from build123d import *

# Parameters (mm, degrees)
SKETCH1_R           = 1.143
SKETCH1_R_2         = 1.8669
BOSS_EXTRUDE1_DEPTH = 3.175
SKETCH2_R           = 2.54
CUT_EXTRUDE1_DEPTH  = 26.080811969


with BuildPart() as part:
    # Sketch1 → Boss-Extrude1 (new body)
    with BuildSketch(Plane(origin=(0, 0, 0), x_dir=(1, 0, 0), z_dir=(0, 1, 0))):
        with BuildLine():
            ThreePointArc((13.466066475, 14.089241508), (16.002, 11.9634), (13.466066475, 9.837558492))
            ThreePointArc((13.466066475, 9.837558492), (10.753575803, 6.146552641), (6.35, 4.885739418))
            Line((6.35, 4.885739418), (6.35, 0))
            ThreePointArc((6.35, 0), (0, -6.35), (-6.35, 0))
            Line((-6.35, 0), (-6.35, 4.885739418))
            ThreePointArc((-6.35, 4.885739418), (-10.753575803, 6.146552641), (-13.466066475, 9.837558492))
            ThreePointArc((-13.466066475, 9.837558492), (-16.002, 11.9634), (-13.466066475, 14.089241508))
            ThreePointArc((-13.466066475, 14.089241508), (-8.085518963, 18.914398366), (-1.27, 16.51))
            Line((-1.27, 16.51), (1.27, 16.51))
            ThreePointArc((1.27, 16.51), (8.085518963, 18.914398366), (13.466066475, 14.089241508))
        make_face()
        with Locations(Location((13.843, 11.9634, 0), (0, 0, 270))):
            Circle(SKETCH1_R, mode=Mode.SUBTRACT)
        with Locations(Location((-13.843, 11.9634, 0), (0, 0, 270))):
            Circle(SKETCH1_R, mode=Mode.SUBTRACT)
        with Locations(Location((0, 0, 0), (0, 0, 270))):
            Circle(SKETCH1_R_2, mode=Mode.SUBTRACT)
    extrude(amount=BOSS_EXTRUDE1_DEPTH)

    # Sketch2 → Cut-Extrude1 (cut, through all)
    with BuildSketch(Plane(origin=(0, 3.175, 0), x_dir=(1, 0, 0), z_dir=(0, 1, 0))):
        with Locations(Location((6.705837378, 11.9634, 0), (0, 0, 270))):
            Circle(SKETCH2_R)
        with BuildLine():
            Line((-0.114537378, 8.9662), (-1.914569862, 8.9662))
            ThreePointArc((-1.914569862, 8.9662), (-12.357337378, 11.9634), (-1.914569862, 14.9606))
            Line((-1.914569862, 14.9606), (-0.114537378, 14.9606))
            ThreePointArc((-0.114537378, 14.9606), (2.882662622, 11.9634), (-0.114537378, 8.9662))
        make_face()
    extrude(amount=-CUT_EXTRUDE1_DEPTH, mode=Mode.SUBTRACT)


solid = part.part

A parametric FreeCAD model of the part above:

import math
import FreeCAD as App
import Part
import Sketcher
from FreeCAD import Vector
Q = App.Units.Quantity

doc = App.newDocument("Part")
body = doc.addObject("PartDesign::Body", "Body")

# Sketch on XZ plane
sketch1 = doc.addObject("Sketcher::SketchObject", "Sketch")
body.addObject(sketch1)
sketch1.AttachmentSupport = (doc.XZ_Plane, [""])
sketch1.MapMode = "FlatFace"
sketch1.addGeometry(Part.ArcOfCircle(Part.Circle(Vector(13.8, -12, 0), Vector(0, 0, 1), 2.2), math.radians(-100), math.radians(100)), False)
sketch1.addGeometry(Part.ArcOfCircle(Part.Circle(Vector(6.7, -12, 0), Vector(0, 0, 1), 7.1), math.radians(-140), math.radians(-17)), False)
sketch1.addGeometry(Part.LineSegment(Vector(1.3, -16.5, 0), Vector(-1.3, -16.5, 0)), False)
sketch1.addGeometry(Part.ArcOfCircle(Part.Circle(Vector(-6.7, -12, 0), Vector(0, 0, 1), 7.1), math.radians(-163), math.radians(-40)), False)
sketch1.addGeometry(Part.ArcOfCircle(Part.Circle(Vector(-13.8, -12, 0), Vector(0, 0, 1), 2.2), math.radians(80), math.radians(280)), False)
sketch1.addGeometry(Part.ArcOfCircle(Part.Circle(Vector(-6.7, -12, 0), Vector(0, 0, 1), 7.1), math.radians(87), math.radians(163)), False)
sketch1.addGeometry(Part.LineSegment(Vector(-6.3, -4.9, 0), Vector(-6.3, 0, 0)), False)
sketch1.addGeometry(Part.ArcOfCircle(Part.Circle(Vector(0, 0, 0), Vector(0, 0, 1), 6.3), math.radians(0), math.radians(180)), False)
sketch1.addGeometry(Part.LineSegment(Vector(6.3, 0, 0), Vector(6.3, -4.9, 0)), False)
sketch1.addGeometry(Part.ArcOfCircle(Part.Circle(Vector(6.7, -12, 0), Vector(0, 0, 1), 7.1), math.radians(17), math.radians(93)), False)
sketch1.addGeometry(Part.Circle(Vector(0, 0, 0), Vector(0, 0, 1), 1.9), False)
sketch1.addGeometry(Part.Circle(Vector(13.8, -12, 0), Vector(0, 0, 1), 1.1), False)
sketch1.addGeometry(Part.Circle(Vector(-13.8, -12, 0), Vector(0, 0, 1), 1.1), False)
sketch1.addConstraint(Sketcher.Constraint("Coincident", 0, 1, 1, 2))
sketch1.addConstraint(Sketcher.Constraint("Coincident", 1, 1, 2, 1))
sketch1.addConstraint(Sketcher.Constraint("Coincident", 2, 2, 3, 2))
sketch1.addConstraint(Sketcher.Constraint("Coincident", 3, 1, 4, 2))
sketch1.addConstraint(Sketcher.Constraint("Coincident", 4, 1, 5, 2))
sketch1.addConstraint(Sketcher.Constraint("Coincident", 5, 1, 6, 1))
sketch1.addConstraint(Sketcher.Constraint("Tangent", 6, 2, 7, 2))
sketch1.addConstraint(Sketcher.Constraint("Tangent", 7, 1, 8, 1))
sketch1.addConstraint(Sketcher.Constraint("Coincident", 8, 2, 9, 2))
sketch1.addConstraint(Sketcher.Constraint("Coincident", 9, 1, 0, 2))
sketch1.addConstraint(Sketcher.Constraint("Horizontal", 2))
sketch1.addConstraint(Sketcher.Constraint("Vertical", 6))
sketch1.addConstraint(Sketcher.Constraint("Vertical", 8))
sketch1.addConstraint(Sketcher.Constraint("Coincident", 7, 3, -1, 1))
sketch1.addConstraint(Sketcher.Constraint("Coincident", 10, 3, -1, 1))
sketch1.addConstraint(Sketcher.Constraint("Coincident", 5, 3, 3, 3))
sketch1.addConstraint(Sketcher.Constraint("Coincident", 9, 3, 1, 3))
sketch1.addConstraint(Sketcher.Constraint("Coincident", 11, 3, 0, 3))
sketch1.addConstraint(Sketcher.Constraint("Coincident", 12, 3, 4, 3))
sketch1.addConstraint(Sketcher.Constraint("Equal", 1, 3))
sketch1.addConstraint(Sketcher.Constraint("Equal", 0, 4))
sketch1.addConstraint(Sketcher.Constraint("Equal", 3, 5))
sketch1.addConstraint(Sketcher.Constraint("Equal", 5, 9))
sketch1.addConstraint(Sketcher.Constraint("Equal", 11, 12))
sketch1.addConstraint(Sketcher.Constraint("Symmetric", 1, 3, 3, 3, -2))
sketch1.addConstraint(Sketcher.Constraint("Symmetric", 0, 3, 4, 3, -2))
sketch1.addConstraint(Sketcher.Constraint("Horizontal", 0, 3, 1, 3))
sketch1.addConstraint(Sketcher.Constraint("Diameter", 11, Q("0.09 in")))
sketch1.addConstraint(Sketcher.Constraint("Radius", 7, Q("0.25 in")))
sketch1.addConstraint(Sketcher.Constraint("Diameter", 10, Q("0.147 in")))
sketch1.addConstraint(Sketcher.Constraint("DistanceX", 2, 2, 2, 1, Q("0.1 in")))
sketch1.addConstraint(Sketcher.Constraint("Radius", 0, Q("0.085 in")))
sketch1.addConstraint(Sketcher.Constraint("Radius", 1, Q("0.279 in")))
sketch1.addConstraint(Sketcher.Constraint("DistanceY", 1, 1, -1, 1, Q("0.65 in")))
sketch1.addConstraint(Sketcher.Constraint("DistanceX", 4, 3, 0, 3, Q("1.09 in")))
sketch1.addConstraint(Sketcher.Constraint("DistanceY", 0, 3, -1, 1, Q("0.471 in")))
pad1 = doc.addObject("PartDesign::Pad", "Pad")
body.addObject(pad1)
pad1.Profile = sketch1
pad1.Length = Q("0.125 in")
pad1.Reversed = True

# Sketch on XZ plane
sketch2 = doc.addObject("Sketcher::SketchObject", "Sketch001")
body.addObject(sketch2)
sketch2.AttachmentSupport = (doc.XZ_Plane, [""])
sketch2.MapMode = "FlatFace"
sketch2.AttachmentOffset = App.Placement(Vector(0, 0, -0.125 * 25.4), App.Rotation())
sketch2.addGeometry(Part.Circle(Vector(6.7, -12, 0), Vector(0, 0, 1), 2.5), False)
sketch2.addGeometry(Part.LineSegment(Vector(-1.9, -9, 0), Vector(-0.1, -9, 0)), False)
sketch2.addGeometry(Part.ArcOfCircle(Part.Circle(Vector(-0.1, -12, 0), Vector(0, 0, 1), 3), math.radians(-90), math.radians(90)), False)
sketch2.addGeometry(Part.LineSegment(Vector(-0.1, -15, 0), Vector(-1.9, -15, 0)), False)
sketch2.addGeometry(Part.ArcOfCircle(Part.Circle(Vector(-6.7, -12, 0), Vector(0, 0, 1), 5.7), math.radians(32), math.radians(328)), False)
sketch2.addConstraint(Sketcher.Constraint("Tangent", 1, 2, 2, 2))
sketch2.addConstraint(Sketcher.Constraint("Tangent", 2, 1, 3, 1))
sketch2.addConstraint(Sketcher.Constraint("Coincident", 3, 2, 4, 2))
sketch2.addConstraint(Sketcher.Constraint("Coincident", 4, 1, 1, 1))
sketch2.addConstraint(Sketcher.Constraint("Horizontal", 1))
sketch2.addConstraint(Sketcher.Constraint("Horizontal", 3))
sketch2.addConstraint(Sketcher.Constraint("Symmetric", 0, 3, 4, 3, -2))
sketch2.addConstraint(Sketcher.Constraint("Horizontal", 0, 3, 2, 3))
sketch2.addConstraint(Sketcher.Constraint("Diameter", 0, Q("0.2 in")))
sketch2.addConstraint(Sketcher.Constraint("Radius", 2, Q("0.118 in")))
sketch2.addConstraint(Sketcher.Constraint("Radius", 4, Q("0.2225 in")))
sketch2.addConstraint(Sketcher.Constraint("DistanceY", 0, 3, -1, 1, Q("0.471 in")))
sketch2.addConstraint(Sketcher.Constraint("DistanceX", 4, 3, 2, 3, Q("0.2595 in")))
sketch2.addConstraint(Sketcher.Constraint("DistanceX", 3, 2, -1, 1, Q("1.91457 mm")))
pocket1 = doc.addObject("PartDesign::Pocket", "Pocket")
body.addObject(pocket1)
pocket1.Profile = sketch2
pocket1.Type = "ThroughAll"
pocket1.Reversed = True

doc.recompute()
